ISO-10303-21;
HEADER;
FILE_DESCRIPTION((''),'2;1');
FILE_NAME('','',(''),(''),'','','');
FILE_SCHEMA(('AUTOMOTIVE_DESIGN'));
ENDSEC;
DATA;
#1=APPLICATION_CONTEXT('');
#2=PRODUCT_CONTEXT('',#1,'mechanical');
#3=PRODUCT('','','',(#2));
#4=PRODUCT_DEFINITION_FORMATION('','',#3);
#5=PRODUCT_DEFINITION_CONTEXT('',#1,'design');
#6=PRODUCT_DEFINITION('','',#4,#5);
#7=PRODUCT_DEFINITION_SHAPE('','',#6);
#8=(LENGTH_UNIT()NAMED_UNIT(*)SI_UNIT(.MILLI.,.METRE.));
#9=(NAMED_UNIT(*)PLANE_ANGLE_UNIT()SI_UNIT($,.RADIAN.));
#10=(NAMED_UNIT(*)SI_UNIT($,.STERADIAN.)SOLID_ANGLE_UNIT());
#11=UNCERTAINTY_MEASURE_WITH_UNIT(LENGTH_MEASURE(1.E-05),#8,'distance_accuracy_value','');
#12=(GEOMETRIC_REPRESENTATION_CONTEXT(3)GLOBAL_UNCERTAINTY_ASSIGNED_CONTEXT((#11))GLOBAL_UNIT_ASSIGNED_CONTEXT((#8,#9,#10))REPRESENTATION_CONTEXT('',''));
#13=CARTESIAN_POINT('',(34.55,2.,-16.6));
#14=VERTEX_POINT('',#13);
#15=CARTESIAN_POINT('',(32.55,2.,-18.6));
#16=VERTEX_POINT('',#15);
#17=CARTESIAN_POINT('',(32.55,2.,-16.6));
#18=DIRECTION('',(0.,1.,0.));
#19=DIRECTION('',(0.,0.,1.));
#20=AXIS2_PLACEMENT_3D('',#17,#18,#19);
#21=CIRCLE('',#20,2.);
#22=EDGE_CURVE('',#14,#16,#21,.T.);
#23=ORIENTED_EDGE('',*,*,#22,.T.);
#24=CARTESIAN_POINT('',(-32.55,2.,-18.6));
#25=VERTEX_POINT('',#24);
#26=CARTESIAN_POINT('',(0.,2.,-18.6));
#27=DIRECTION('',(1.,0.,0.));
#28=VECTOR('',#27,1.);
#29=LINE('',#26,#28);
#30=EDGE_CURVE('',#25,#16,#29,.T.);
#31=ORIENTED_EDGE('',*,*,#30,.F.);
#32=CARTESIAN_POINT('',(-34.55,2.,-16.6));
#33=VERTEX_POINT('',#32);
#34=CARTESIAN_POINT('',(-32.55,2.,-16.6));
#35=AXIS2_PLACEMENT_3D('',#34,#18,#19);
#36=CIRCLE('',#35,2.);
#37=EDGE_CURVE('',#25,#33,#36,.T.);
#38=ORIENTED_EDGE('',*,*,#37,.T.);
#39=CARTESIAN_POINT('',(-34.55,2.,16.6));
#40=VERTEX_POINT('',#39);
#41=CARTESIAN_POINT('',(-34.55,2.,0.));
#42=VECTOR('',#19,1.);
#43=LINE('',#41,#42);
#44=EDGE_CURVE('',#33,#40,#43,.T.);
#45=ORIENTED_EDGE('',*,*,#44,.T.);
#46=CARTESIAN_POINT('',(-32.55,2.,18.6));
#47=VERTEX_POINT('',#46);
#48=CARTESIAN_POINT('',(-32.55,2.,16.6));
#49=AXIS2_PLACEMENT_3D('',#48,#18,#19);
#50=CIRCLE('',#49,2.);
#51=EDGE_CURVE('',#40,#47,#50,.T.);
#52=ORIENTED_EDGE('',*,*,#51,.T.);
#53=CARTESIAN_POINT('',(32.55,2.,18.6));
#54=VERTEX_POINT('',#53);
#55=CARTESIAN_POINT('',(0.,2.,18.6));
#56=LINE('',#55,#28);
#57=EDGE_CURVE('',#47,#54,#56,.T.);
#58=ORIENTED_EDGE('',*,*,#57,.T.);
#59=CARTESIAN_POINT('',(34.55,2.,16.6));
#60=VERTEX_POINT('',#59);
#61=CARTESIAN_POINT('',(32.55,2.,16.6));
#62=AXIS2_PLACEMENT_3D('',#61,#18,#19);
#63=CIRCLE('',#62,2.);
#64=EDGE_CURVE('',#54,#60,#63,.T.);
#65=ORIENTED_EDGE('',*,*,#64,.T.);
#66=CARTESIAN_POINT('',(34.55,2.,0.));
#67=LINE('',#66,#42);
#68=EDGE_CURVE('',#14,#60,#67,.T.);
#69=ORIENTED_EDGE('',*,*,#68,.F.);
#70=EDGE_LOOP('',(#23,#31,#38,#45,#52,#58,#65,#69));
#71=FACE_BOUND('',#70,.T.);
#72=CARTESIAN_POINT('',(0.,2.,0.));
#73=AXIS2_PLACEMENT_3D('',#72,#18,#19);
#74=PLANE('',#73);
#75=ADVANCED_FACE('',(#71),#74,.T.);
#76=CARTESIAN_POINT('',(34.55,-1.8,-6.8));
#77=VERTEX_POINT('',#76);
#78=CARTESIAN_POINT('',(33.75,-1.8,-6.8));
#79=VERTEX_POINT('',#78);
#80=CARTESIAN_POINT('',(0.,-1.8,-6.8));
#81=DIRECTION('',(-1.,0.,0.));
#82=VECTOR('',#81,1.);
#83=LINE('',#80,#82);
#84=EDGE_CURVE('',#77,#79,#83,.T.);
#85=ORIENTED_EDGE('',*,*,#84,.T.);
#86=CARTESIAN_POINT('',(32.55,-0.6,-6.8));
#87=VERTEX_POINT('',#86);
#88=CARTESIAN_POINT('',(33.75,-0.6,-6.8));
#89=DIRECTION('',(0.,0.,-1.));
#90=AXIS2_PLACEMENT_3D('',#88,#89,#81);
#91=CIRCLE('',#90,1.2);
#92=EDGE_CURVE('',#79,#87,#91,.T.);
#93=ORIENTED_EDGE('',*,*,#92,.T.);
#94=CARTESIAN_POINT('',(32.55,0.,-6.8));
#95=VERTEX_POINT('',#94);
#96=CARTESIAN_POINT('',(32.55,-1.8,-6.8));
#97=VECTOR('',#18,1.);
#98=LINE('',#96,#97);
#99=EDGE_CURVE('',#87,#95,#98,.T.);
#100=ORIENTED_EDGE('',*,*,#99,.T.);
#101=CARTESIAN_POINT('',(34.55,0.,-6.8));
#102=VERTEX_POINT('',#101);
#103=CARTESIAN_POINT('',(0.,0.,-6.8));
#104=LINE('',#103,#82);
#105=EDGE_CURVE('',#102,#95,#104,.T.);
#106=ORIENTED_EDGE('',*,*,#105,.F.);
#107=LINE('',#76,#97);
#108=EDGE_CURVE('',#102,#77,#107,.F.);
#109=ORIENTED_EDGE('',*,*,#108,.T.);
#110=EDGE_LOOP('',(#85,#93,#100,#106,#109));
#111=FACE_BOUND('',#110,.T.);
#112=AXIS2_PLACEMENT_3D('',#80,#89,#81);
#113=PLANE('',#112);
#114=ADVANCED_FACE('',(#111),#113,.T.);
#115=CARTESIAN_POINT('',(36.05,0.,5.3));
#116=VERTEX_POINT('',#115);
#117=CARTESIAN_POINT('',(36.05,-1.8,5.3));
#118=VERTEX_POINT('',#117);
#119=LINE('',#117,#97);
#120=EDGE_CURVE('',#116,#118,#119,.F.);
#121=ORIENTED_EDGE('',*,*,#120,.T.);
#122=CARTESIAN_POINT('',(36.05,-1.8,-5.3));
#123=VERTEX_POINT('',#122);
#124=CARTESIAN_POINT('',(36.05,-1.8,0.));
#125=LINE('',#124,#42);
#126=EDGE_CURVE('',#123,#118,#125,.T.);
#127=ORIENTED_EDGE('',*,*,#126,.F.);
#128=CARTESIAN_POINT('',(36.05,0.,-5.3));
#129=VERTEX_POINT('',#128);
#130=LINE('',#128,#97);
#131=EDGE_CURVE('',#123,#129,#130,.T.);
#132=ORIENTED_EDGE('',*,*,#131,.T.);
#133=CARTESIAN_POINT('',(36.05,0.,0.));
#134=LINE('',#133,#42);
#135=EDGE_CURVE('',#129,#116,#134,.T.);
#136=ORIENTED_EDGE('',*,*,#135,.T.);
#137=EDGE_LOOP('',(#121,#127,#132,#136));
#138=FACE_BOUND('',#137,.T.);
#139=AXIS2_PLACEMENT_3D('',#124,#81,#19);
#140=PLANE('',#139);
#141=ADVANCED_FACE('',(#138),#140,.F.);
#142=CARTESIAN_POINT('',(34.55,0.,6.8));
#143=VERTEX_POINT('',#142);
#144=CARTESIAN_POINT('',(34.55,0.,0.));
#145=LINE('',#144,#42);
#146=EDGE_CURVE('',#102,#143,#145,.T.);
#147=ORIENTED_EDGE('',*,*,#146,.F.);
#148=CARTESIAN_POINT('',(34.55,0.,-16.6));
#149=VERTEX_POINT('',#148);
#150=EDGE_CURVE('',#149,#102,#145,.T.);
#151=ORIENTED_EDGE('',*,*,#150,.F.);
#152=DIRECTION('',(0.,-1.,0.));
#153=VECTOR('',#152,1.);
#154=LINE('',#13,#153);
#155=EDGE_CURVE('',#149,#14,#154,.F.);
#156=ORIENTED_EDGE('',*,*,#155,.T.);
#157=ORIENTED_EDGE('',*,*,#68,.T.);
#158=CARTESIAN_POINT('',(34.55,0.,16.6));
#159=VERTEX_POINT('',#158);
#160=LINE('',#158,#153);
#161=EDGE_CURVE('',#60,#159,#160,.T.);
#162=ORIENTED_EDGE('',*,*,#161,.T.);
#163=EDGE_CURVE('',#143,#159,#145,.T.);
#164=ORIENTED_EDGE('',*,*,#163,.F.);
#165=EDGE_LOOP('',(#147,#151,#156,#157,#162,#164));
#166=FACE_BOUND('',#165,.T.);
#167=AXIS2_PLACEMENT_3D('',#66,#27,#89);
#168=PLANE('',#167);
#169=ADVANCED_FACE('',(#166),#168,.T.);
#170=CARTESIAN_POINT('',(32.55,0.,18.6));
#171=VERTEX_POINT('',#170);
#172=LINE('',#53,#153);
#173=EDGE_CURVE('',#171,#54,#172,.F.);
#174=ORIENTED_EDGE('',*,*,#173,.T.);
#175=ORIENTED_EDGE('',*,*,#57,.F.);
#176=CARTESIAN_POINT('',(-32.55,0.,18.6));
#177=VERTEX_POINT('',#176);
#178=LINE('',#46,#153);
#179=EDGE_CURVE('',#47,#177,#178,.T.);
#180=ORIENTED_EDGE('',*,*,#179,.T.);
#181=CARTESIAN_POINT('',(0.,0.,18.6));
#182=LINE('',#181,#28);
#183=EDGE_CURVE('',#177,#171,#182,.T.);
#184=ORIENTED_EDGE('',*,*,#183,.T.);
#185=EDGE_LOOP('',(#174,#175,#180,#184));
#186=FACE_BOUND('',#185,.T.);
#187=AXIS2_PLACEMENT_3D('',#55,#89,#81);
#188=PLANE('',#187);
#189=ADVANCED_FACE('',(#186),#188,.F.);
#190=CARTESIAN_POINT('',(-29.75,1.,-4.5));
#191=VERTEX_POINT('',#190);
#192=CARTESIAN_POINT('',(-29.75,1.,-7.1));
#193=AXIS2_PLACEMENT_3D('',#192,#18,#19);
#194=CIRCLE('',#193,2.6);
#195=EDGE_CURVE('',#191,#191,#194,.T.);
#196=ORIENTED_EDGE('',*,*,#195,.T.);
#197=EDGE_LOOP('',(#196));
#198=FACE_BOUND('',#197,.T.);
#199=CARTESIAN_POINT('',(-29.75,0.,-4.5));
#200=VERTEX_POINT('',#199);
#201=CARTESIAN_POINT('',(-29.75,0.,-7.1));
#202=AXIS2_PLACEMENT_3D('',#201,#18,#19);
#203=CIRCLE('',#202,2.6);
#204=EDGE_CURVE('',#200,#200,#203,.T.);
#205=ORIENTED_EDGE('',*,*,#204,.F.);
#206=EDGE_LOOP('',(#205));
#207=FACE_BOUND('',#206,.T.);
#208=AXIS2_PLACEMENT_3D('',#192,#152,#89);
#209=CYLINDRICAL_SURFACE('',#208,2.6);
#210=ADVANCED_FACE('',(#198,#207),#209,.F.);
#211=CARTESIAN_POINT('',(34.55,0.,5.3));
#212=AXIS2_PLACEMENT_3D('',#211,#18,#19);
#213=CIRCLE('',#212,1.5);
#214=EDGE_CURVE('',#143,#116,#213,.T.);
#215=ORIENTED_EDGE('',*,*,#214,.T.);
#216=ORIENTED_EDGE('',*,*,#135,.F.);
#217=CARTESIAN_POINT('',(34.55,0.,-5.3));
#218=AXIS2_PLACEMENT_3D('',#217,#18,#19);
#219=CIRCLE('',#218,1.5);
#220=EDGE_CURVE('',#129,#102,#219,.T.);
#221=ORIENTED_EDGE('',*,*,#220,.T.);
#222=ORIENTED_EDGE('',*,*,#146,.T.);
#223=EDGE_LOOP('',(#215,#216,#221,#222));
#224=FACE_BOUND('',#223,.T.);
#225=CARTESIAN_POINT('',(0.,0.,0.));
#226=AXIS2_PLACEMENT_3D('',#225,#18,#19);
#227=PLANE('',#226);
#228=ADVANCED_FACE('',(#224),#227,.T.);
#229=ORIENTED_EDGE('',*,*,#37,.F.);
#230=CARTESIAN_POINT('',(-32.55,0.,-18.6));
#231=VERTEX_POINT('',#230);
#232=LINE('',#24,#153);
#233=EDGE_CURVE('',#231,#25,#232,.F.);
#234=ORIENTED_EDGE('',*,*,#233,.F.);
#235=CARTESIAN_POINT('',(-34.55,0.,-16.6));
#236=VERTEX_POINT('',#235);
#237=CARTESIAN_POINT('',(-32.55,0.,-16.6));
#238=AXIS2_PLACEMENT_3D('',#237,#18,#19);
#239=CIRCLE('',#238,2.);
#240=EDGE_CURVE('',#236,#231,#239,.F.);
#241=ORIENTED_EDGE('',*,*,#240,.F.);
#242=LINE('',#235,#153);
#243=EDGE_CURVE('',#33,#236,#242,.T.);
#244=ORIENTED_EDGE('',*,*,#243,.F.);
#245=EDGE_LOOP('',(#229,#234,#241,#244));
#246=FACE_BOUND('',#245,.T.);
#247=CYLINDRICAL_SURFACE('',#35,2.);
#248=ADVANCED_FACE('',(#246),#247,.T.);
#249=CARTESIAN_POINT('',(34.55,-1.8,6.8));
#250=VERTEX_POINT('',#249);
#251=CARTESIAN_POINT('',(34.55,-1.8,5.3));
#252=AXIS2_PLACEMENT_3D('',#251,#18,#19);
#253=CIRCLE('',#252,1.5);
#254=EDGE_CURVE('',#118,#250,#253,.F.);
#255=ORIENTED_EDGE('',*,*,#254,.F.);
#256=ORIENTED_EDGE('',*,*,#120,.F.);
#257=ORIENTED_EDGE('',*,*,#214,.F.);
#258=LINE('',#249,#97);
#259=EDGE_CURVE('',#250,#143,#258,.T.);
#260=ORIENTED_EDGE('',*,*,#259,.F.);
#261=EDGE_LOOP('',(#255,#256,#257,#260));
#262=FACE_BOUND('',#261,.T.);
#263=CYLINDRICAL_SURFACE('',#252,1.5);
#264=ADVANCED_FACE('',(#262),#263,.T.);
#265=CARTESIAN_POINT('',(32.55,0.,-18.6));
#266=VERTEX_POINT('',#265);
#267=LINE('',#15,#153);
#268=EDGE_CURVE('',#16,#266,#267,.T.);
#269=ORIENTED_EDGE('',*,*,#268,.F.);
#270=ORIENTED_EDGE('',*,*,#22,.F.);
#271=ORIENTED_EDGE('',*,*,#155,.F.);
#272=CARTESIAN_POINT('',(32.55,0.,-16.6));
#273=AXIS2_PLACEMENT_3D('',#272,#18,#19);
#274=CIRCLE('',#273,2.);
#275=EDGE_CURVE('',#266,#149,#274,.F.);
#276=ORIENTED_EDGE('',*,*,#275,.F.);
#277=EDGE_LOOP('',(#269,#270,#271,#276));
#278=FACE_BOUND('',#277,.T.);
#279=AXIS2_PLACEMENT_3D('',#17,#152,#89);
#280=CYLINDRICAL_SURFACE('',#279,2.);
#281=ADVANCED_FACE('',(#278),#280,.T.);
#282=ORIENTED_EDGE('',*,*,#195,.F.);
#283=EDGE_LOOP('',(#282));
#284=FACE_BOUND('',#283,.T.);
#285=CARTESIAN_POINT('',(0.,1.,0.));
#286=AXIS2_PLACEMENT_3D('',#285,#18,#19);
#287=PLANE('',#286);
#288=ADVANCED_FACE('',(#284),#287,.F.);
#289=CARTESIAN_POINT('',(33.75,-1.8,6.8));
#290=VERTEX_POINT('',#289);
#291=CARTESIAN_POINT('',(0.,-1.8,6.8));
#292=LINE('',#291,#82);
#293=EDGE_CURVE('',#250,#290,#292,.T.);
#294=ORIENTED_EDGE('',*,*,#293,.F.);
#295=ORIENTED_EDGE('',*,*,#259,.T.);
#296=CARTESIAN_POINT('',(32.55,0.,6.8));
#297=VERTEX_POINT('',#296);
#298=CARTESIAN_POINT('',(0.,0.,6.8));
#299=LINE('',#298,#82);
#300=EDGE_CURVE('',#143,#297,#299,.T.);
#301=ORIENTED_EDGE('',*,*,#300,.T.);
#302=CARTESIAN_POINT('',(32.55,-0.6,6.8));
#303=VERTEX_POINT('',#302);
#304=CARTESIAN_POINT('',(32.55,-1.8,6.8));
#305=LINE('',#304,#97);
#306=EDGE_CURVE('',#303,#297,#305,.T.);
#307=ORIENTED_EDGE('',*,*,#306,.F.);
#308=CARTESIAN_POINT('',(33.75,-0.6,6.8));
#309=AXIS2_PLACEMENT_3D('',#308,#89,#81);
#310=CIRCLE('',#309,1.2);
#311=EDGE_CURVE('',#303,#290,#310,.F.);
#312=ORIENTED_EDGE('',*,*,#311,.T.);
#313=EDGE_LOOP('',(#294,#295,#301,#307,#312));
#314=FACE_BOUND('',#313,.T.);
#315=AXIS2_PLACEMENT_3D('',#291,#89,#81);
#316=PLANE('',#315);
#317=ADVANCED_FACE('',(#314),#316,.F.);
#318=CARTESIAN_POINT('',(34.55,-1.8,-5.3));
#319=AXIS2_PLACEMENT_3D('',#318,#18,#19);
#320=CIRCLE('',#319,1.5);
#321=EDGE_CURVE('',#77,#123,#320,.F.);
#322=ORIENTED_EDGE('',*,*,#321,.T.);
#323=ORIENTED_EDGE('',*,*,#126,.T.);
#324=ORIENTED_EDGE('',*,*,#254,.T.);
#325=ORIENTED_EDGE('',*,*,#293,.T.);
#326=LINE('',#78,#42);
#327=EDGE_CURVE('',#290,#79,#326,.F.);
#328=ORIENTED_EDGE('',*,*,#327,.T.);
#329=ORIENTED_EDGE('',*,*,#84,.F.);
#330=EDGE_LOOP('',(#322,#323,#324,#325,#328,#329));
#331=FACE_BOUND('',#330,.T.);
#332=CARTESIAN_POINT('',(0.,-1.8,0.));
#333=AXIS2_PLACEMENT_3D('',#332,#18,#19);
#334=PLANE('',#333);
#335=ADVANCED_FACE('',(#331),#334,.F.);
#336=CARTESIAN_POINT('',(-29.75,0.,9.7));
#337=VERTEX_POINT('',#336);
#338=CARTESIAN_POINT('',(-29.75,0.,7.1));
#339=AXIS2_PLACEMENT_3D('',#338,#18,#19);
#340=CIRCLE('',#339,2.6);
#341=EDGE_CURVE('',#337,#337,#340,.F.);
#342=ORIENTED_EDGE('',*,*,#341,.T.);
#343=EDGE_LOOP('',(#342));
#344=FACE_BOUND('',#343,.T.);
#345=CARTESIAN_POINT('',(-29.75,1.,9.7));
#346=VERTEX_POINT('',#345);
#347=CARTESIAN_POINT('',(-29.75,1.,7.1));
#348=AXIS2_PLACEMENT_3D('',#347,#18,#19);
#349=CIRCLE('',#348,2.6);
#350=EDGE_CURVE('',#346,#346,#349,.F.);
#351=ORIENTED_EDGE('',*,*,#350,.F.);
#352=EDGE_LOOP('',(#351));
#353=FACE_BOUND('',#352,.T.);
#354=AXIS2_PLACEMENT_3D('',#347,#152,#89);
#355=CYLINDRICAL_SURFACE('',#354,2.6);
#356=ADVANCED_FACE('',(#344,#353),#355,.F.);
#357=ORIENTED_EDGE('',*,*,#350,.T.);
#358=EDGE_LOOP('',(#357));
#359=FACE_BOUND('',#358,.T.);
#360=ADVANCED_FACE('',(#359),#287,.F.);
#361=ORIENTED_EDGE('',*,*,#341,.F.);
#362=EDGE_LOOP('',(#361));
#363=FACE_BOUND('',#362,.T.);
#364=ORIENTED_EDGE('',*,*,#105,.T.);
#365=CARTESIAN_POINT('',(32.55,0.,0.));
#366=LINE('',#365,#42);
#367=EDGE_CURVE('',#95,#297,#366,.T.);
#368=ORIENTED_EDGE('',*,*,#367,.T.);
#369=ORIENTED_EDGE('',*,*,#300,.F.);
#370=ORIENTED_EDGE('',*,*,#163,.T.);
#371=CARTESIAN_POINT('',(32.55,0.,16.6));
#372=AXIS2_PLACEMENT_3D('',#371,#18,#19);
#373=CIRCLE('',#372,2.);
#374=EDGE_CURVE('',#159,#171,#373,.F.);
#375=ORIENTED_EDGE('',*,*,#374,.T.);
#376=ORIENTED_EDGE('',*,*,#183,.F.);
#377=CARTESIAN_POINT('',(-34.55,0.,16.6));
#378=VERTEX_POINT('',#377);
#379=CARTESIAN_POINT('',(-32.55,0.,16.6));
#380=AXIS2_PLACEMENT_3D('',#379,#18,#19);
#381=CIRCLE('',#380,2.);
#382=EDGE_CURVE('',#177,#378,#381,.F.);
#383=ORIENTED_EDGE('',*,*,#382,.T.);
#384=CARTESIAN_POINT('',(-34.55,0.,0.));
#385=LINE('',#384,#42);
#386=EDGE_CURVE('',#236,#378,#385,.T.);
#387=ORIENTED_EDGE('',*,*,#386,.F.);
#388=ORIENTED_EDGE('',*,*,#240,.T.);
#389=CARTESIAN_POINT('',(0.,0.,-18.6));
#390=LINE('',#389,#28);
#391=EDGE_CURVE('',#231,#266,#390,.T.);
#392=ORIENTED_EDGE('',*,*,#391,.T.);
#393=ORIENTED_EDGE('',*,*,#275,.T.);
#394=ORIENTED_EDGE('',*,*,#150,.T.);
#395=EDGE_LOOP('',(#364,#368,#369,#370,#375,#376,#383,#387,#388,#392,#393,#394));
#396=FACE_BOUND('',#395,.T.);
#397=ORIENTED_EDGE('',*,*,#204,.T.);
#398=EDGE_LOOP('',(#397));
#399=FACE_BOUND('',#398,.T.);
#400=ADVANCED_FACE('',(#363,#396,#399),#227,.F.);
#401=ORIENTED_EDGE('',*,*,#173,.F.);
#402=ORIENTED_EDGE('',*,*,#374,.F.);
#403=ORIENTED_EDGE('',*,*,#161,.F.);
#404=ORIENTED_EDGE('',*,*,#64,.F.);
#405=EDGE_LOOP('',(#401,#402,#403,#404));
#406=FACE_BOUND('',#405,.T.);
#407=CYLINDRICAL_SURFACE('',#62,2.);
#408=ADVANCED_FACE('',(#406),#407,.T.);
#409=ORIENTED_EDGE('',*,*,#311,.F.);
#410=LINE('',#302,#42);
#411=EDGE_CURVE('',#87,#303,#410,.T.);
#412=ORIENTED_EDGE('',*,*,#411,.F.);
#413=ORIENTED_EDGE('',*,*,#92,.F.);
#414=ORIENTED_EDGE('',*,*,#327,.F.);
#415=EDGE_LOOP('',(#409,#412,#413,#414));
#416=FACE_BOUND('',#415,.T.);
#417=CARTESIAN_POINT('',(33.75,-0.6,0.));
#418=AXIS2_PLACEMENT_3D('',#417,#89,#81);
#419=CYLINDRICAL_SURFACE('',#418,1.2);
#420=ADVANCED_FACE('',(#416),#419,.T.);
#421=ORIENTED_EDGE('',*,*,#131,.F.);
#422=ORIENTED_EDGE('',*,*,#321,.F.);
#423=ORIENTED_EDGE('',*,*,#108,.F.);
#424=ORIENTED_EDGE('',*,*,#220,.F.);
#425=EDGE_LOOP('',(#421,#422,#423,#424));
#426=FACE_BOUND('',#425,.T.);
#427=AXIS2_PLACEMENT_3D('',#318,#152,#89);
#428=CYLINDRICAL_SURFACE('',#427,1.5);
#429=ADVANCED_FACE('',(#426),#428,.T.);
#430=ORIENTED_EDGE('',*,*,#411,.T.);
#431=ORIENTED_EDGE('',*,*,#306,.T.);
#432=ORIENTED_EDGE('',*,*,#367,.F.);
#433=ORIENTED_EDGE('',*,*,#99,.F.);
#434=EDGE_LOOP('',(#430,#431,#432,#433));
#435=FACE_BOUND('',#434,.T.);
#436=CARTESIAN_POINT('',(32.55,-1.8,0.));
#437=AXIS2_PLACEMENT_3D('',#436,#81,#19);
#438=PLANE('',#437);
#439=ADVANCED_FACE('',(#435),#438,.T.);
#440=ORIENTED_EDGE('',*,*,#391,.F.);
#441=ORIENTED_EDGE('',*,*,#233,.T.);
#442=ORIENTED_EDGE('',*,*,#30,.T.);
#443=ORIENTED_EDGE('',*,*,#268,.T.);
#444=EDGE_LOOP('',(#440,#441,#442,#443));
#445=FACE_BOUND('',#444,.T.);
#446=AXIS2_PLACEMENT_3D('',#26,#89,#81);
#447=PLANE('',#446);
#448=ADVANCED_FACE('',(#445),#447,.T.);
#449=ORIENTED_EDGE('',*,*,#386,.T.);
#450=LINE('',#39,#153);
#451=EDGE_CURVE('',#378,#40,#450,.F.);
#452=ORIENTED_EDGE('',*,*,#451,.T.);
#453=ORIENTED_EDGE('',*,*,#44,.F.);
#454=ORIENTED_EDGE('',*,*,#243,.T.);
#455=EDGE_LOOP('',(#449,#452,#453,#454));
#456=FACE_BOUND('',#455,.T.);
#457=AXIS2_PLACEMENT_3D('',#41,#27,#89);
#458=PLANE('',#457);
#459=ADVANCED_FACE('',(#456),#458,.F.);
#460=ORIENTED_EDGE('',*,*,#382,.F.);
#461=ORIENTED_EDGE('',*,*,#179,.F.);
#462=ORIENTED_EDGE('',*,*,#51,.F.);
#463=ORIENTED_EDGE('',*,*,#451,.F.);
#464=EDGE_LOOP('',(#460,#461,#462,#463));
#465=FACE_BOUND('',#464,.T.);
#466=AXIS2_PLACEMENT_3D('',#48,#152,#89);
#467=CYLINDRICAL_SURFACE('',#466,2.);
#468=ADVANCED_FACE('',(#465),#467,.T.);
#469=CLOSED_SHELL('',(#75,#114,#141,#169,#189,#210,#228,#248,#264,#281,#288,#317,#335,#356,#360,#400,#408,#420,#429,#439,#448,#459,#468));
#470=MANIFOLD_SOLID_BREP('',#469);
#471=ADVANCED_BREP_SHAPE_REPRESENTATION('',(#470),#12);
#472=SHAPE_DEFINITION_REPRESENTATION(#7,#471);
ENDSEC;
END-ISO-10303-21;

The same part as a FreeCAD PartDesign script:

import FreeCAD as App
import Part
import Sketcher
Q = App.Units.Quantity


def edges_at(feature, points):
    """Names of the edges that pass closest to the given points."""
    edges = feature.Shape.Edges
    near = lambda p: min(range(len(edges)), key=lambda i: edges[i].distToShape(Part.Vertex(*p))[0])
    return sorted({f"Edge{near(p) + 1}" for p in points})

doc = App.newDocument("Part")
body = doc.addObject("PartDesign::Body", "Body")

# Sketch on XZ plane
sketch1 = body.newObject("Sketcher::SketchObject", "Sketch")
sketch1.AttachmentSupport = (doc.getObject("XZ_Plane"), [""])
sketch1.MapMode = "FlatFace"
sketch1.addGeometry([
    Part.LineSegment(App.Vector(35, -19, 0), App.Vector(-35, -19, 0)),
    Part.LineSegment(App.Vector(-35, -19, 0), App.Vector(-35, 19, 0)),
    Part.LineSegment(App.Vector(-35, 19, 0), App.Vector(35, 19, 0)),
    Part.LineSegment(App.Vector(35, 19, 0), App.Vector(35, -19, 0)),
], False)
sketch1.addConstraint([
    Sketcher.Constraint("Coincident", 0, 2, 1, 1),
    Sketcher.Constraint("Coincident", 1, 2, 2, 1),
    Sketcher.Constraint("Coincident", 2, 2, 3, 1),
    Sketcher.Constraint("Coincident", 3, 2, 0, 1),
    Sketcher.Constraint("Horizontal", 0),
    Sketcher.Constraint("Vertical", 1),
    Sketcher.Constraint("Horizontal", 2),
    Sketcher.Constraint("Vertical", 3),
    Sketcher.Constraint("Symmetric", 0, 2, 2, 2, -1, 1),
    Sketcher.Constraint("DistanceX", 0, 2, 0, 1, Q("69.1 mm")),
    Sketcher.Constraint("DistanceY", 1, 1, 1, 2, Q("37.2 mm")),
])
pad1 = body.newObject("PartDesign::Pad", "Pad")
pad1.Profile = sketch1
pad1.Length = 2
pad1.Reversed = True

# Sketch on XZ plane
sketch2 = body.newObject("Sketcher::SketchObject", "Sketch001")
sketch2.AttachmentSupport = (doc.getObject("XZ_Plane"), [""])
sketch2.MapMode = "FlatFace"
sketch2.addGeometry([
    Part.LineSegment(App.Vector(36, 6.8, 0), App.Vector(36, -6.8, 0)),
    Part.LineSegment(App.Vector(36, -6.8, 0), App.Vector(32.5, -6.8, 0)),
    Part.LineSegment(App.Vector(32.5, -6.8, 0), App.Vector(32.5, 6.8, 0)),
    Part.LineSegment(App.Vector(32.5, 6.8, 0), App.Vector(36, 6.8, 0)),
], False)
sketch2.addConstraint([
    Sketcher.Constraint("Coincident", 0, 2, 1, 1),
    Sketcher.Constraint("Coincident", 1, 2, 2, 1),
    Sketcher.Constraint("Coincident", 2, 2, 3, 1),
    Sketcher.Constraint("Coincident", 3, 2, 0, 1),
    Sketcher.Constraint("Vertical", 0),
    Sketcher.Constraint("Horizontal", 1),
    Sketcher.Constraint("Vertical", 2),
    Sketcher.Constraint("Horizontal", 3),
    Sketcher.Constraint("DistanceX", 1, 2, 1, 1, Q("3.5 mm")),
    Sketcher.Constraint("DistanceY", 0, 2, 0, 1, Q("13.6 mm")),
    Sketcher.Constraint("DistanceY", 0, 2, -1, 1, Q("6.8 mm")),
    Sketcher.Constraint("DistanceX", -1, 1, 0, 2, Q("36.05 mm")),
])
pad2 = body.newObject("PartDesign::Pad", "Pad001")
pad2.Profile = sketch2
pad2.Length = 1.8

# Sketch on XZ plane
sketch3 = body.newObject("Sketcher::SketchObject", "Sketch002")
sketch3.AttachmentSupport = (doc.getObject("XZ_Plane"), [""])
sketch3.MapMode = "FlatFace"
sketch3.addGeometry([
    Part.Circle(App.Vector(-29.8, 7.1, 0), App.Vector(0, 0, 1), 2.6),
    Part.Circle(App.Vector(-29.8, -7.1, 0), App.Vector(0, 0, 1), 2.6),
], False)
sketch3.addConstraint([
    Sketcher.Constraint("Equal", 0, 1),
    Sketcher.Constraint("Symmetric", 0, 3, 1, 3, -1),
    Sketcher.Constraint("Diameter", 0, Q("5.2 mm")),
    Sketcher.Constraint("DistanceY", -1, 1, 0, 3, Q("7.1 mm")),
    Sketcher.Constraint("DistanceX", 0, 3, -1, 1, Q("29.75 mm")),
])
pocket1 = body.newObject("PartDesign::Pocket", "Pocket")
pocket1.Profile = sketch3
pocket1.Length = 1
doc.recompute()

fillet = body.newObject("PartDesign::Fillet", "Fillet")
fillet.Base = (pocket1, edges_at(pocket1, [
    (-34.55, 1, 18.6),
    (-34.55, 1, -18.6),
    (34.55, 1, -18.6),
    (34.55, 1, 18.6),
]))
fillet.Radius = 2
doc.recompute()

fillet2 = body.newObject("PartDesign::Fillet", "Fillet001")
fillet2.Base = (fillet, edges_at(fillet, [(36.05, -0.9, -6.8), (36.05, -0.9, 6.8)]))
fillet2.Radius = 1.5
doc.recompute()

fillet3 = body.newObject("PartDesign::Fillet", "Fillet002")
fillet3.Base = (fillet2, edges_at(fillet2, [(32.55, -1.8, 0)]))
fillet3.Radius = 1.2

doc.recompute()
